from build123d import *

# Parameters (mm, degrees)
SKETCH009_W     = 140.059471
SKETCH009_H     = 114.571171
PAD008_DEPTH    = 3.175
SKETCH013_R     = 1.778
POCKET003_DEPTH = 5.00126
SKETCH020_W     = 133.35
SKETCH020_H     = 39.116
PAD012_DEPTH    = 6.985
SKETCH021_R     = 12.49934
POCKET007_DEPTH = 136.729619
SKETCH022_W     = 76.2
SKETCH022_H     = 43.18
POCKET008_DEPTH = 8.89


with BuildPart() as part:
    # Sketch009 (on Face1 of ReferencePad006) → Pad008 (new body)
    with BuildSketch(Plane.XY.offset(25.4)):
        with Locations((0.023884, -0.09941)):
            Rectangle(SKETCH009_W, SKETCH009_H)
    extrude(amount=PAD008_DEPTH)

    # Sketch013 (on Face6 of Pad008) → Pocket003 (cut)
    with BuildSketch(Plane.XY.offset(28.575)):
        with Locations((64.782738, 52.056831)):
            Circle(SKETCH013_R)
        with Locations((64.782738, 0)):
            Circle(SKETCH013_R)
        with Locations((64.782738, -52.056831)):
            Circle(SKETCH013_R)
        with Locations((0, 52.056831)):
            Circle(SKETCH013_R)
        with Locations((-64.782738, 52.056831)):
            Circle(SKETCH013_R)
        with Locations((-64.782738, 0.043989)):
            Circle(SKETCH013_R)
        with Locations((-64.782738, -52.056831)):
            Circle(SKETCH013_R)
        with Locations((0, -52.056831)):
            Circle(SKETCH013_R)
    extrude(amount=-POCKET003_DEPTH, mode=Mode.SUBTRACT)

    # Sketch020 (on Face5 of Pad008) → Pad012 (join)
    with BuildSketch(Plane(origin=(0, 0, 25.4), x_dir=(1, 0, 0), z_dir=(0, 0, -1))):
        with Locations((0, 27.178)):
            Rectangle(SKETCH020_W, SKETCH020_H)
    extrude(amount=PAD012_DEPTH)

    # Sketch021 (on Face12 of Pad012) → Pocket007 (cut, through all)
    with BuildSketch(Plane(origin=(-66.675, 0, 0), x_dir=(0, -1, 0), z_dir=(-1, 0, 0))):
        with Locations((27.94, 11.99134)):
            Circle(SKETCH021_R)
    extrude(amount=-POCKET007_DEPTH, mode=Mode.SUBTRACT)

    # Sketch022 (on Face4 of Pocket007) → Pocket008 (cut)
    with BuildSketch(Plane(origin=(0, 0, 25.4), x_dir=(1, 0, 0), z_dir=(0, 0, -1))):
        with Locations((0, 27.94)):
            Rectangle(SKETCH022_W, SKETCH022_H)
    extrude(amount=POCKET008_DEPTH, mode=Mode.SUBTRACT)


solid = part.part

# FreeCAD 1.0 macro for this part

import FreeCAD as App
import Part
import Sketcher
from FreeCAD import Vector
Q = App.Units.Quantity

doc = App.newDocument("Part")
body = doc.addObject("PartDesign::Body", "Body")

sketch1 = doc.addObject("Sketcher::SketchObject", "Sketch")
body.addObject(sketch1)
sketch1.AttachmentSupport = (doc.XY_Plane, [""])
sketch1.MapMode = "FlatFace"
sketch1.AttachmentOffset = App.Placement(Vector(0, 0, 1 * 25.4), App.Rotation())
sketch1.addGeometry([
    Part.LineSegment(Vector(-70, 57, 0), Vector(-70, -57, 0)),
    Part.LineSegment(Vector(-70, -57, 0), Vector(70, -57, 0)),
    Part.LineSegment(Vector(70, -57, 0), Vector(70, 57, 0)),
    Part.LineSegment(Vector(70, 57, 0), Vector(-70, 57, 0)),
], False)
sketch1.addConstraint([
    Sketcher.Constraint("Coincident", 0, 2, 1, 1),
    Sketcher.Constraint("Coincident", 1, 2, 2, 1),
    Sketcher.Constraint("Coincident", 2, 2, 3, 1),
    Sketcher.Constraint("Coincident", 3, 2, 0, 1),
    Sketcher.Constraint("Vertical", 0),
    Sketcher.Constraint("Horizontal", 1),
    Sketcher.Constraint("Vertical", 2),
    Sketcher.Constraint("Horizontal", 3),
    Sketcher.Constraint("DistanceX", 1, 1, 1, 2, Q("140.059471 mm")),
    Sketcher.Constraint("DistanceY", 0, 2, 0, 1, Q("114.571171 mm")),
    Sketcher.Constraint("DistanceX", 0, 2, -1, 1, Q("70.005852 mm")),
    Sketcher.Constraint("DistanceY", 0, 2, -1, 1, Q("57.384996 mm")),
])
pad1 = doc.addObject("PartDesign::Pad", "Pad")
body.addObject(pad1)
pad1.Profile = sketch1
pad1.Length = Q("0.125 in")

sketch2 = doc.addObject("Sketcher::SketchObject", "Sketch001")
body.addObject(sketch2)
sketch2.AttachmentSupport = (doc.XY_Plane, [""])
sketch2.MapMode = "FlatFace"
sketch2.AttachmentOffset = App.Placement(Vector(0, 0, 1.125 * 25.4), App.Rotation())
sketch2.addGeometry([
    Part.Circle(Vector(64.8, 52.1, 0), Vector(0, 0, 1), 1.8),
    Part.Circle(Vector(64.8, 0, 0), Vector(0, 0, 1), 1.8),
    Part.Circle(Vector(64.8, -52.1, 0), Vector(0, 0, 1), 1.8),
    Part.Circle(Vector(0, 52.1, 0), Vector(0, 0, 1), 1.8),
    Part.Circle(Vector(-64.8, 52.1, 0), Vector(0, 0, 1), 1.8),
    Part.Circle(Vector(-64.8, 0, 0), Vector(0, 0, 1), 1.8),
    Part.Circle(Vector(-64.8, -52.1, 0), Vector(0, 0, 1), 1.8),
    Part.Circle(Vector(0, -52.1, 0), Vector(0, 0, 1), 1.8),
], False)
sketch2.addConstraint([
    Sketcher.Constraint("Equal", 0, 1),
    Sketcher.Constraint("Equal", 1, 2),
    Sketcher.Constraint("Equal", 2, 3),
    Sketcher.Constraint("Equal", 3, 4),
    Sketcher.Constraint("Equal", 4, 5),
    Sketcher.Constraint("Equal", 5, 6),
    Sketcher.Constraint("Equal", 6, 7),
    Sketcher.Constraint("Symmetric", 2, 3, 4, 3, -1, 1),
    Sketcher.Constraint("Symmetric", 0, 3, 6, 3, -1, 1),
    Sketcher.Constraint("Symmetric", 3, 3, 7, 3, -1, 1),
    Sketcher.Constraint("Symmetric", 0, 3, 4, 3, -2),
    Sketcher.Constraint("PointOnObject", 1, 3, -1),
    Sketcher.Constraint("PointOnObject", 3, 3, -2),
    Sketcher.Constraint("Horizontal", 0, 3, 3, 3),
    Sketcher.Constraint("Vertical", 0, 3, 1, 3),
    Sketcher.Constraint("Vertical", 4, 3, 5, 3),
    Sketcher.Constraint("Diameter", 0, Q("0.14 in")),
    Sketcher.Constraint("DistanceY", -1, 1, 0, 3, Q("52.056831 mm")),
    Sketcher.Constraint("DistanceY", -1, 1, 5, 3, Q("0.043989 mm")),
    Sketcher.Constraint("DistanceX", -1, 1, 0, 3, Q("64.782738 mm")),
])
pocket1 = doc.addObject("PartDesign::Pocket", "Pocket")
body.addObject(pocket1)
pocket1.Profile = sketch2
pocket1.Length = Q("0.1969 in")

sketch3 = doc.addObject("Sketcher::SketchObject", "Sketch002")
body.addObject(sketch3)
sketch3.AttachmentSupport = (doc.XY_Plane, [""])
sketch3.MapMode = "FlatFace"
sketch3.AttachmentOffset = App.Placement(Vector(0, 0, 1 * 25.4), App.Rotation())
sketch3.addGeometry([
    Part.LineSegment(Vector(-67, -47, 0), Vector(-67, -8, 0)),
    Part.LineSegment(Vector(-67, -8, 0), Vector(67, -8, 0)),
    Part.LineSegment(Vector(67, -8, 0), Vector(67, -47, 0)),
    Part.LineSegment(Vector(67, -47, 0), Vector(-67, -47, 0)),
], False)
sketch3.addConstraint([
    Sketcher.Constraint("Coincident", 0, 2, 1, 1),
    Sketcher.Constraint("Coincident", 1, 2, 2, 1),
    Sketcher.Constraint("Coincident", 2, 2, 3, 1),
    Sketcher.Constraint("Coincident", 3, 2, 0, 1),
    Sketcher.Constraint("Vertical", 0),
    Sketcher.Constraint("Horizontal", 1),
    Sketcher.Constraint("Vertical", 2),
    Sketcher.Constraint("Horizontal", 3),
    Sketcher.Constraint("DistanceX", 1, 1, 1, 2, Q("5.25 in")),
    Sketcher.Constraint("DistanceY", 0, 1, 0, 2, Q("1.54 in")),
    Sketcher.Constraint("DistanceY", 0, 2, -1, 1, Q("0.3 in")),
    Sketcher.Constraint("DistanceX", 0, 2, -1, 1, Q("2.625 in")),
])
pad2 = doc.addObject("PartDesign::Pad", "Pad001")
body.addObject(pad2)
pad2.Profile = sketch3
pad2.Length = Q("0.275 in")
pad2.Reversed = True

sketch4 = doc.addObject("Sketcher::SketchObject", "Sketch003")
body.addObject(sketch4)
sketch4.AttachmentSupport = (doc.YZ_Plane, [""])
sketch4.MapMode = "FlatFace"
sketch4.AttachmentOffset = App.Placement(Vector(0, 0, -2.625 * 25.4), App.Rotation())
sketch4.addGeometry(Part.Circle(Vector(-28, 12, 0), Vector(0, 0, 1), 12), False)
sketch4.addConstraint([
    Sketcher.Constraint("Diameter", 0, Q("0.9842 in")),
    Sketcher.Constraint("DistanceX", 0, 3, -1, 1, Q("1.1 in")),
    Sketcher.Constraint("DistanceY", -1, 1, 0, 3, Q("0.4721 in")),
])
pocket2 = doc.addObject("PartDesign::Pocket", "Pocket001")
body.addObject(pocket2)
pocket2.Profile = sketch4
pocket2.Type = "ThroughAll"
pocket2.Reversed = True

sketch5 = doc.addObject("Sketcher::SketchObject", "Sketch004")
body.addObject(sketch5)
sketch5.AttachmentSupport = (doc.XY_Plane, [""])
sketch5.MapMode = "FlatFace"
sketch5.AttachmentOffset = App.Placement(Vector(0, 0, 1 * 25.4), App.Rotation())
sketch5.addGeometry([
    Part.LineSegment(Vector(-38, -50, 0), Vector(-38, -6, 0)),
    Part.LineSegment(Vector(-38, -6, 0), Vector(38, -6, 0)),
    Part.LineSegment(Vector(38, -6, 0), Vector(38, -50, 0)),
    Part.LineSegment(Vector(38, -50, 0), Vector(-38, -50, 0)),
], False)
sketch5.addConstraint([
    Sketcher.Constraint("Coincident", 0, 2, 1, 1),
    Sketcher.Constraint("Coincident", 1, 2, 2, 1),
    Sketcher.Constraint("Coincident", 2, 2, 3, 1),
    Sketcher.Constraint("Coincident", 3, 2, 0, 1),
    Sketcher.Constraint("Vertical", 0),
    Sketcher.Constraint("Horizontal", 1),
    Sketcher.Constraint("Vertical", 2),
    Sketcher.Constraint("Horizontal", 3),
    Sketcher.Constraint("DistanceX", 1, 1, 1, 2, Q("3 in")),
    Sketcher.Constraint("DistanceY", 0, 1, 0, 2, Q("1.7 in")),
    Sketcher.Constraint("DistanceX", 0, 2, -1, 1, Q("1.5 in")),
    Sketcher.Constraint("DistanceY", 0, 2, -1, 1, Q("0.25 in")),
])
pocket3 = doc.addObject("PartDesign::Pocket", "Pocket002")
body.addObject(pocket3)
pocket3.Profile = sketch5
pocket3.Length = Q("0.35 in")

doc.recompute()
